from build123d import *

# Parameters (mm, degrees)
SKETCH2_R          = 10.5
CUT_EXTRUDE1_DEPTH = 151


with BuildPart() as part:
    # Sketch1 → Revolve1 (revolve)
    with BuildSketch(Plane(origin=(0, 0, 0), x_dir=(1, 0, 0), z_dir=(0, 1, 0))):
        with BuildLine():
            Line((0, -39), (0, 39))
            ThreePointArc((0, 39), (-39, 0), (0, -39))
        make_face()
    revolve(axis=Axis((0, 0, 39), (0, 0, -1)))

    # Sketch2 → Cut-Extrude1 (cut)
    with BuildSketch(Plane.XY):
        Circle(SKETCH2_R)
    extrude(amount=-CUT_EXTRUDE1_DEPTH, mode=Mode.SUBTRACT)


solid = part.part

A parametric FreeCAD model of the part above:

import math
import FreeCAD as App
import Part
import Sketcher

V = App.Vector

doc = App.newDocument("Part")
body = doc.addObject("PartDesign::Body", "Body")

# Sketch on XZ plane
sketch1 = body.newObject("Sketcher::SketchObject", "Sketch")
sketch1.AttachmentSupport = (doc.getObject("XZ_Plane"), [""])
sketch1.MapMode = "FlatFace"
sketch1.addGeometry(Part.LineSegment(V(0, 39, 0), V(0, -39, 0)), False)
sketch1.addGeometry(Part.ArcOfCircle(Part.Circle(V(0, 0, 0), V(0, 0, 1), 39), math.radians(90), math.radians(270)), False)
sketch1.addConstraint(Sketcher.Constraint("Coincident", 0, 1, 1, 1))
sketch1.addConstraint(Sketcher.Constraint("Coincident", 1, 2, 0, 2))
sketch1.addConstraint(Sketcher.Constraint("Vertical", 0))
sketch1.addConstraint(Sketcher.Constraint("Coincident", 1, 3, -1, 1))
sketch1.addConstraint(Sketcher.Constraint("PointOnObject", 0, 1, -2))
sketch1.addConstraint(Sketcher.Constraint("Radius", 1, 39.0))
revolution = body.newObject("PartDesign::Revolution", "Revolution")
revolution.Profile = sketch1
revolution.ReferenceAxis = (sketch1, ["V_Axis"])
revolution.Angle = 360

# Sketch on XY plane
sketch2 = body.newObject("Sketcher::SketchObject", "Sketch001")
sketch2.AttachmentSupport = (doc.getObject("XY_Plane"), [""])
sketch2.MapMode = "FlatFace"
sketch2.addGeometry(Part.Circle(V(0, 0, 0), V(0, 0, 1), 10), False)
sketch2.addConstraint(Sketcher.Constraint("Coincident", 0, 3, -1, 1))
sketch2.addConstraint(Sketcher.Constraint("Diameter", 0, 21.0))
pocket1 = body.newObject("PartDesign::Pocket", "Pocket")
pocket1.Profile = sketch2
pocket1.Length = 151

doc.recompute()
